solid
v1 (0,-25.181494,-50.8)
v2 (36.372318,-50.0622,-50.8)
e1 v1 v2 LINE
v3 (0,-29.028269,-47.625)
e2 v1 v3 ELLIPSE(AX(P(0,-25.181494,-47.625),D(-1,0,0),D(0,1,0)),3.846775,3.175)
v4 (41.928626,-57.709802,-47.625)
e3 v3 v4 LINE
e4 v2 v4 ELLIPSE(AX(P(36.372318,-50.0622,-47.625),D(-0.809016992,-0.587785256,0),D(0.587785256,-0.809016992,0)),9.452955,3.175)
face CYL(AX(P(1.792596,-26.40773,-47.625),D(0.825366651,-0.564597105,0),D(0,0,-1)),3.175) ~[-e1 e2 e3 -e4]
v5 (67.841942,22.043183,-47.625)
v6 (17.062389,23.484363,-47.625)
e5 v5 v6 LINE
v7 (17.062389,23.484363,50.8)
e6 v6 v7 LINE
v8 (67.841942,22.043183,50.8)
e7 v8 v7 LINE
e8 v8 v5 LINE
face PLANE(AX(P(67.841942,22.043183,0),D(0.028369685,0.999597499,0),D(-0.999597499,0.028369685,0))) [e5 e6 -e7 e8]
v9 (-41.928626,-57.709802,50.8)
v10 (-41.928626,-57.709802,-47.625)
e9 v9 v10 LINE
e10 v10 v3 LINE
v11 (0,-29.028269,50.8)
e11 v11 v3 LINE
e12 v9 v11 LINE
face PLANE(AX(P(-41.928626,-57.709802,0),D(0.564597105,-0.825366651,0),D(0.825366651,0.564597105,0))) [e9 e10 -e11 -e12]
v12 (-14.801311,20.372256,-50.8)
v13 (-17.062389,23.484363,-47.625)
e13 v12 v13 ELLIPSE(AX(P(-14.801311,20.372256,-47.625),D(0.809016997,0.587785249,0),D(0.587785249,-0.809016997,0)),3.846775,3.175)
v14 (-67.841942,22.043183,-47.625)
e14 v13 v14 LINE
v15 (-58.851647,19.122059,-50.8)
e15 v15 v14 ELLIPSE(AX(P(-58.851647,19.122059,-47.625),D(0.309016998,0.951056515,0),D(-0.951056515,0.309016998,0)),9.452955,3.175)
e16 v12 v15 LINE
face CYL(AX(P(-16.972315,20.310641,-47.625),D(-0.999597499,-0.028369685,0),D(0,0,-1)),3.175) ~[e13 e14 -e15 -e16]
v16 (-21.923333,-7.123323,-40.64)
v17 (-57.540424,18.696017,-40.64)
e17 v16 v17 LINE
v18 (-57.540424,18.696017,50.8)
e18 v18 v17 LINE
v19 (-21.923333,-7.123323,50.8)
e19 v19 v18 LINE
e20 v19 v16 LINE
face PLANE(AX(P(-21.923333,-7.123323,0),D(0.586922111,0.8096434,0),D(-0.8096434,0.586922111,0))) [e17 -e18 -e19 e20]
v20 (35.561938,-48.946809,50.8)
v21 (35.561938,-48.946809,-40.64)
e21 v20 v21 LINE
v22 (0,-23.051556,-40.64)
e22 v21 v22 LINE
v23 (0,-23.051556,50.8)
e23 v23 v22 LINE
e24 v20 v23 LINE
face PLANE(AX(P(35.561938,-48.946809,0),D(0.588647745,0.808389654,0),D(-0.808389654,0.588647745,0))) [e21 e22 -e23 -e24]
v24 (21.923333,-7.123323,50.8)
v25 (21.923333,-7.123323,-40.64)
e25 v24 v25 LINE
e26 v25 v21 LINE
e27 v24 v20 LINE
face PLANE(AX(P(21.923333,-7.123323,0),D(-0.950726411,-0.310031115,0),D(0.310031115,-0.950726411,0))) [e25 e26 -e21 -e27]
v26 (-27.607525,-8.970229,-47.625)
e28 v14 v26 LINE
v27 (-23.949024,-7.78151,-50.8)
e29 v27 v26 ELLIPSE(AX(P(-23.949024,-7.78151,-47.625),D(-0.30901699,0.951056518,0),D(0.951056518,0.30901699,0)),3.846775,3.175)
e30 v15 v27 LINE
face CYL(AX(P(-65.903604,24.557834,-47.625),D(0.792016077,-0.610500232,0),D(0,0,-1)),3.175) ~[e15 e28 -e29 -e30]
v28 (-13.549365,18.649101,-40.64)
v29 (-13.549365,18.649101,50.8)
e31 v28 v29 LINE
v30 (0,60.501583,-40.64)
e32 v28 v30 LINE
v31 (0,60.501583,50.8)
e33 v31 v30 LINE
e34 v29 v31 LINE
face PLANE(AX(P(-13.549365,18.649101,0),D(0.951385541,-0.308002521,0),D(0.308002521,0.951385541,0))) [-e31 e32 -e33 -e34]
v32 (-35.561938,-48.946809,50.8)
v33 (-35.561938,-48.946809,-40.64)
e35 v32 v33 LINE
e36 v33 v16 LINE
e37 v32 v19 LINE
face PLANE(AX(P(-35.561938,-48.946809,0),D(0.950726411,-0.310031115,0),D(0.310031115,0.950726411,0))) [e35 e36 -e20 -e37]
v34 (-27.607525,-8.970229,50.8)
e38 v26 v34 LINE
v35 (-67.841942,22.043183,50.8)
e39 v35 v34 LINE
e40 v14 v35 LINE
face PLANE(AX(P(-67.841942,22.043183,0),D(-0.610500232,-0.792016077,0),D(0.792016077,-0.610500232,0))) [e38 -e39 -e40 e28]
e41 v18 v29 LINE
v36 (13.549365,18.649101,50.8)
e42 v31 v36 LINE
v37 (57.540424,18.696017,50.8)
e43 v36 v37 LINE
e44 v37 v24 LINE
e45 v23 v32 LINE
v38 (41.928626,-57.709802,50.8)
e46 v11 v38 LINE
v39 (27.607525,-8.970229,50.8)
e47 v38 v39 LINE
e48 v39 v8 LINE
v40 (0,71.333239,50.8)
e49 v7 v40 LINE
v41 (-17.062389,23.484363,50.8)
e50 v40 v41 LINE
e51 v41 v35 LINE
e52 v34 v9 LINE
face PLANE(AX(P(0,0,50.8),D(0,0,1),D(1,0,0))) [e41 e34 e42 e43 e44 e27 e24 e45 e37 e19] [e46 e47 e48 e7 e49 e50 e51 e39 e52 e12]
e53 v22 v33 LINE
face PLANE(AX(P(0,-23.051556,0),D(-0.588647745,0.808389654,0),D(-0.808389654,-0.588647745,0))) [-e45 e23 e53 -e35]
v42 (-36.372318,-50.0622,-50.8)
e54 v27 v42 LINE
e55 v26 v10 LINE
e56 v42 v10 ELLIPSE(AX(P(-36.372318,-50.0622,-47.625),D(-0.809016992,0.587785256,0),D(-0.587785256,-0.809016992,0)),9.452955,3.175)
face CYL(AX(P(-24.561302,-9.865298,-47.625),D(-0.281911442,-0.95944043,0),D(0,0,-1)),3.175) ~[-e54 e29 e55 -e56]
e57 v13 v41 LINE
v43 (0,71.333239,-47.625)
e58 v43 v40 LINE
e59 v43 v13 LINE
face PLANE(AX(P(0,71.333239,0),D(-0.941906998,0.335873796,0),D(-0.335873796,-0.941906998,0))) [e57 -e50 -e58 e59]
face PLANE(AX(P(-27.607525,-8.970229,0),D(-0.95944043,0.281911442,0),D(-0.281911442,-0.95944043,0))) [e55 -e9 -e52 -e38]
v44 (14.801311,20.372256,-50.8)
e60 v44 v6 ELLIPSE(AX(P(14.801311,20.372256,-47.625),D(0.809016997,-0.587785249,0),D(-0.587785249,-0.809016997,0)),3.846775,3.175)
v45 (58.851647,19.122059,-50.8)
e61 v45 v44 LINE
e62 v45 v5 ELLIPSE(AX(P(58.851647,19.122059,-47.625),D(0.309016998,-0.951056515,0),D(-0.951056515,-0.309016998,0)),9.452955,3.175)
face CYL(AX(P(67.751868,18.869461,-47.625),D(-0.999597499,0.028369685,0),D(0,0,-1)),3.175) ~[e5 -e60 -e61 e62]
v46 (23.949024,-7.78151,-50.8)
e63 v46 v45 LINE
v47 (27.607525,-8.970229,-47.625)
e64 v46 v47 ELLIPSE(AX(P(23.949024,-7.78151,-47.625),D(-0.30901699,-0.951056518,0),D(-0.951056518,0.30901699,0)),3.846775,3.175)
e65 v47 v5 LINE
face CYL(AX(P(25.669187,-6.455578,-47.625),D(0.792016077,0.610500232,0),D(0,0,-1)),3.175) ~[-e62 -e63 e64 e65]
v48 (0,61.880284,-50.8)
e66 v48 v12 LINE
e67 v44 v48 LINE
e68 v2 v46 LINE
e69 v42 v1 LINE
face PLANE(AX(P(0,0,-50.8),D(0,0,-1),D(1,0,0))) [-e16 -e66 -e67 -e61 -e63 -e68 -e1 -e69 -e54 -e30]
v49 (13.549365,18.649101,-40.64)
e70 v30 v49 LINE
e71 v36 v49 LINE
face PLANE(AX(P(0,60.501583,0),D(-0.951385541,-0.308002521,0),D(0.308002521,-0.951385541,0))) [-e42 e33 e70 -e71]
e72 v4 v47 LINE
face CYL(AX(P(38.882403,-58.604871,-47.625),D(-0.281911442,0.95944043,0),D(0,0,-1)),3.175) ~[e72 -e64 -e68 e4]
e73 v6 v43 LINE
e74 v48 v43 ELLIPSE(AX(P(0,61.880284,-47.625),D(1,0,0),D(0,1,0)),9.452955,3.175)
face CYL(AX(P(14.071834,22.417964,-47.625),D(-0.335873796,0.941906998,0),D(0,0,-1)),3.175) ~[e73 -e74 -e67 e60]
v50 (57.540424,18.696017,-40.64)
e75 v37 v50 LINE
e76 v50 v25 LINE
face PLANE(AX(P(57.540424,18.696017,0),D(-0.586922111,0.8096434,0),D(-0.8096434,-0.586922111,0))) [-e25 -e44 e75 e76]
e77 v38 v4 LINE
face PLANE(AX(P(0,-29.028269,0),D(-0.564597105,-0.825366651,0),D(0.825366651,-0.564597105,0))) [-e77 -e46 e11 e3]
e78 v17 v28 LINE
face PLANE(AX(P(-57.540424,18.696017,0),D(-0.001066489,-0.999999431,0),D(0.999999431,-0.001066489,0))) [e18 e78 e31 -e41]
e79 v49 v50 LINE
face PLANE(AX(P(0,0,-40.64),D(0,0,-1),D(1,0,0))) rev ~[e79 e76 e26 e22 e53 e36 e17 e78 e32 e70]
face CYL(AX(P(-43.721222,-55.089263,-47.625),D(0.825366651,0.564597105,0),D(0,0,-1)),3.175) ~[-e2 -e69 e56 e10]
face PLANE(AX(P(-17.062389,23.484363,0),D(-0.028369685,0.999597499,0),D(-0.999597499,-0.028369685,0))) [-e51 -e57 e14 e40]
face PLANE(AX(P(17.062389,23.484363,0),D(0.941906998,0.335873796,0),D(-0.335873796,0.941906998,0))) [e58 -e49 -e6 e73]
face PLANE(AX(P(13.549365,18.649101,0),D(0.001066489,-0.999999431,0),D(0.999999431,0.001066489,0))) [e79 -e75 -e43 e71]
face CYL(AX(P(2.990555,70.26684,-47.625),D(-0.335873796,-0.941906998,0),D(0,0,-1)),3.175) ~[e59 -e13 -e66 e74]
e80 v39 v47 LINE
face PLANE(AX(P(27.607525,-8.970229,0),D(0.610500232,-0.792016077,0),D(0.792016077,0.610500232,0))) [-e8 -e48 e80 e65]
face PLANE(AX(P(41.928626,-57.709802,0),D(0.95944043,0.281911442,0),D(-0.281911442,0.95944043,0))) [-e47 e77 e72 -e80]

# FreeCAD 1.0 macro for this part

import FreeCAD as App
import Part
import Sketcher
Q = App.Units.Quantity


def edges_at(feature, points):
    """Names of the edges that pass closest to the given points."""
    edges = feature.Shape.Edges
    near = lambda p: min(range(len(edges)), key=lambda i: edges[i].distToShape(Part.Vertex(*p))[0])
    return sorted({f"Edge{near(p) + 1}" for p in points})

doc = App.newDocument("Part")
body = doc.addObject("PartDesign::Body", "Body")

# Sketch on XY plane
sketch1 = body.newObject("Sketcher::SketchObject", "Sketch")
sketch1.AttachmentSupport = (doc.getObject("XY_Plane"), [""])
sketch1.MapMode = "FlatFace"
sketch1.addGeometry([
    Part.LineSegment(App.Vector(67.841942, 22.043183, 0), App.Vector(17.062389, 23.484363, 0)),  # 0
    Part.LineSegment(App.Vector(17.062389, 23.484363, 0), App.Vector(0, 71.333239, 0)),  # 1
    Part.LineSegment(App.Vector(0, 71.333239, 0), App.Vector(-17.062389, 23.484363, 0)),  # 2
    Part.LineSegment(App.Vector(-17.062389, 23.484363, 0), App.Vector(-67.841942, 22.043183, 0)),  # 3
    Part.LineSegment(App.Vector(-67.841942, 22.043183, 0), App.Vector(-27.607525, -8.970229, 0)),  # 4
    Part.LineSegment(App.Vector(-27.607525, -8.970229, 0), App.Vector(-41.928626, -57.709802, 0)),  # 5
    Part.LineSegment(App.Vector(-41.928626, -57.709802, 0), App.Vector(0, -29.028269, 0)),  # 6
    Part.LineSegment(App.Vector(0, -29.028269, 0), App.Vector(41.928626, -57.709802, 0)),  # 7
    Part.LineSegment(App.Vector(41.928626, -57.709802, 0), App.Vector(27.607525, -8.970229, 0)),  # 8
    Part.LineSegment(App.Vector(27.607525, -8.970229, 0), App.Vector(67.841942, 22.043183, 0)),  # 9
    Part.LineSegment(App.Vector(-57.540424, 18.696017, 0), App.Vector(-13.549365, 18.649101, 0)),  # 10
    Part.LineSegment(App.Vector(-13.549365, 18.649101, 0), App.Vector(0, 60.501583, 0)),  # 11
    Part.LineSegment(App.Vector(0, 60.501583, 0), App.Vector(13.549365, 18.649101, 0)),  # 12
    Part.LineSegment(App.Vector(13.549365, 18.649101, 0), App.Vector(57.540424, 18.696017, 0)),  # 13
    Part.LineSegment(App.Vector(57.540424, 18.696017, 0), App.Vector(21.923333, -7.123323, 0)),  # 14
    Part.LineSegment(App.Vector(21.923333, -7.123323, 0), App.Vector(35.561938, -48.946809, 0)),  # 15
    Part.LineSegment(App.Vector(35.561938, -48.946809, 0), App.Vector(0, -23.051556, 0)),  # 16
    Part.LineSegment(App.Vector(0, -23.051556, 0), App.Vector(-35.561938, -48.946809, 0)),  # 17
    Part.LineSegment(App.Vector(-35.561938, -48.946809, 0), App.Vector(-21.923333, -7.123323, 0)),  # 18
    Part.LineSegment(App.Vector(-21.923333, -7.123323, 0), App.Vector(-57.540424, 18.696017, 0)),  # 19
], False)
sketch1.addConstraint([
    Sketcher.Constraint("Coincident", 0, 2, 1, 1),
    Sketcher.Constraint("Coincident", 1, 2, 2, 1),
    Sketcher.Constraint("Coincident", 2, 2, 3, 1),
    Sketcher.Constraint("Coincident", 3, 2, 4, 1),
    Sketcher.Constraint("Coincident", 4, 2, 5, 1),
    Sketcher.Constraint("Coincident", 5, 2, 6, 1),
    Sketcher.Constraint("Coincident", 6, 2, 7, 1),
    Sketcher.Constraint("Coincident", 7, 2, 8, 1),
    Sketcher.Constraint("Coincident", 8, 2, 9, 1),
    Sketcher.Constraint("Coincident", 9, 2, 0, 1),
    Sketcher.Constraint("Coincident", 10, 2, 11, 1),
    Sketcher.Constraint("Coincident", 11, 2, 12, 1),
    Sketcher.Constraint("Coincident", 12, 2, 13, 1),
    Sketcher.Constraint("Coincident", 13, 2, 14, 1),
    Sketcher.Constraint("Coincident", 14, 2, 15, 1),
    Sketcher.Constraint("Coincident", 15, 2, 16, 1),
    Sketcher.Constraint("Coincident", 16, 2, 17, 1),
    Sketcher.Constraint("Coincident", 17, 2, 18, 1),
    Sketcher.Constraint("Coincident", 18, 2, 19, 1),
    Sketcher.Constraint("Coincident", 19, 2, 10, 1),
    Sketcher.Constraint("Symmetric", 0, 2, 2, 2, -2),
    Sketcher.Constraint("Symmetric", 5, 2, 7, 2, -2),
    Sketcher.Constraint("Symmetric", 4, 2, 8, 2, -2),
    Sketcher.Constraint("Symmetric", 3, 2, 9, 2, -2),
    Sketcher.Constraint("Symmetric", 10, 2, 12, 2, -2),
    Sketcher.Constraint("Symmetric", 15, 2, 17, 2, -2),
    Sketcher.Constraint("Symmetric", 14, 2, 18, 2, -2),
    Sketcher.Constraint("Symmetric", 13, 2, 19, 2, -2),
    Sketcher.Constraint("PointOnObject", 1, 2, -2),
    Sketcher.Constraint("PointOnObject", 6, 2, -2),
    Sketcher.Constraint("PointOnObject", 11, 2, -2),
    Sketcher.Constraint("PointOnObject", 16, 2, -2),
    Sketcher.Constraint("Equal", 0, 1),
    Sketcher.Constraint("Equal", 3, 4),
    Sketcher.Constraint("Equal", 4, 5),
    Sketcher.Constraint("Equal", 5, 6),
    Sketcher.Constraint("Equal", 10, 11),
    Sketcher.Constraint("Equal", 13, 14),
    Sketcher.Constraint("Equal", 14, 15),
    Sketcher.Constraint("Equal", 15, 16),
    Sketcher.Constraint("Distance", 0, Q("2 in")),
    Sketcher.Constraint("DistanceY", -1, 1, 10, 2, Q("18.649101 mm")),
    Sketcher.Constraint("DistanceX", 5, 2, 4, 2, Q("14.321101 mm")),
    Sketcher.Constraint("DistanceX", 8, 2, 13, 2, Q("29.932899 mm")),
    Sketcher.Constraint("DistanceX", -1, 1, 0, 2, Q("17.062389 mm")),
    Sketcher.Constraint("DistanceY", -1, 1, 1, 2, Q("71.333239 mm")),
    Sketcher.Constraint("DistanceY", 4, 2, -1, 1, Q("8.970229 mm")),
    Sketcher.Constraint("DistanceY", 6, 2, -1, 1, Q("29.028269 mm")),
    Sketcher.Constraint("DistanceY", 15, 2, -1, 1, Q("48.946809 mm")),
    Sketcher.Constraint("DistanceX", 4, 2, 10, 2, Q("14.05816 mm")),
    Sketcher.Constraint("DistanceX", 14, 2, 8, 2, Q("5.684192 mm")),
    Sketcher.Constraint("DistanceX", 15, 2, 7, 2, Q("6.366688 mm")),
])
pad1 = body.newObject("PartDesign::Pad", "Pad")
pad1.Profile = sketch1
pad1.Length = Q("4 in")
pad1.Midplane = True

# Sketch on XY plane
sketch2 = body.newObject("Sketcher::SketchObject", "Sketch001")
sketch2.AttachmentSupport = (doc.getObject("XY_Plane"), [""])
sketch2.MapMode = "FlatFace"
sketch2.AttachmentOffset = App.Placement(App.Vector(0, 0, -2 * 25.4), App.Rotation())
sketch2.addGeometry([
    Part.LineSegment(App.Vector(0, -23.051556, 0), App.Vector(-35.561938, -48.946809, 0)),  # 0
    Part.LineSegment(App.Vector(-35.561938, -48.946809, 0), App.Vector(-21.923333, -7.123323, 0)),  # 1
    Part.LineSegment(App.Vector(-21.923333, -7.123323, 0), App.Vector(-57.540424, 18.696017, 0)),  # 2
    Part.LineSegment(App.Vector(-57.540424, 18.696017, 0), App.Vector(-13.549365, 18.649101, 0)),  # 3
    Part.LineSegment(App.Vector(-13.549365, 18.649101, 0), App.Vector(0, 60.501583, 0)),  # 4
    Part.LineSegment(App.Vector(0, 60.501583, 0), App.Vector(13.549365, 18.649101, 0)),  # 5
    Part.LineSegment(App.Vector(13.549365, 18.649101, 0), App.Vector(57.540424, 18.696017, 0)),  # 6
    Part.LineSegment(App.Vector(57.540424, 18.696017, 0), App.Vector(21.923333, -7.123323, 0)),  # 7
    Part.LineSegment(App.Vector(21.923333, -7.123323, 0), App.Vector(35.561938, -48.946809, 0)),  # 8
    Part.LineSegment(App.Vector(35.561938, -48.946809, 0), App.Vector(0, -23.051556, 0)),  # 9
], False)
sketch2.addConstraint([
    Sketcher.Constraint("Coincident", 0, 2, 1, 1),
    Sketcher.Constraint("Coincident", 1, 2, 2, 1),
    Sketcher.Constraint("Coincident", 2, 2, 3, 1),
    Sketcher.Constraint("Coincident", 3, 2, 4, 1),
    Sketcher.Constraint("Coincident", 4, 2, 5, 1),
    Sketcher.Constraint("Coincident", 5, 2, 6, 1),
    Sketcher.Constraint("Coincident", 6, 2, 7, 1),
    Sketcher.Constraint("Coincident", 7, 2, 8, 1),
    Sketcher.Constraint("Coincident", 8, 2, 9, 1),
    Sketcher.Constraint("Coincident", 9, 2, 0, 1),
    Sketcher.Constraint("Symmetric", 3, 2, 5, 2, -2),
    Sketcher.Constraint("Symmetric", 2, 2, 6, 2, -2),
    Sketcher.Constraint("Symmetric", 1, 2, 7, 2, -2),
    Sketcher.Constraint("Symmetric", 0, 2, 8, 2, -2),
    Sketcher.Constraint("PointOnObject", 4, 2, -2),
    Sketcher.Constraint("PointOnObject", 9, 2, -2),
    Sketcher.Constraint("Equal", 0, 1),
    Sketcher.Constraint("Equal", 1, 2),
    Sketcher.Constraint("Equal", 2, 3),
    Sketcher.Constraint("Equal", 3, 4),
    Sketcher.Constraint("DistanceY", -1, 1, 3, 2, Q("18.649101 mm")),
    Sketcher.Constraint("DistanceY", 0, 2, -1, 1, Q("48.946809 mm")),
    Sketcher.Constraint("DistanceX", 2, 2, 1, 2, Q("35.617091 mm")),
    Sketcher.Constraint("DistanceY", 1, 2, 2, 2, Q("25.81934 mm")),
    Sketcher.Constraint("DistanceY", 3, 2, 4, 2, Q("41.852482 mm")),
    Sketcher.Constraint("DistanceX", 0, 2, 7, 2, Q("57.485271 mm")),
])
pad2 = body.newObject("PartDesign::Pad", "Pad001")
pad2.Profile = sketch2
pad2.Length = Q("0.4 in")
doc.recompute()

fillet = body.newObject("PartDesign::Fillet", "Fillet")
fillet.Base = (pad2, edges_at(pad2, [
    (42.452, 22.764, -50.8),
    (8.531, 47.409, -50.8),
    (-8.531, 47.409, -50.8),
    (-42.452, 22.764, -50.8),
    (-47.725, 6.536, -50.8),
    (-34.768, -33.34, -50.8),
    (-20.964, -43.369, -50.8),
    (20.964, -43.369, -50.8),
    (34.768, -33.34, -50.8),
    (47.725, 6.536, -50.8),
]))
fillet.Radius = Q("0.125 in")

doc.recompute()
